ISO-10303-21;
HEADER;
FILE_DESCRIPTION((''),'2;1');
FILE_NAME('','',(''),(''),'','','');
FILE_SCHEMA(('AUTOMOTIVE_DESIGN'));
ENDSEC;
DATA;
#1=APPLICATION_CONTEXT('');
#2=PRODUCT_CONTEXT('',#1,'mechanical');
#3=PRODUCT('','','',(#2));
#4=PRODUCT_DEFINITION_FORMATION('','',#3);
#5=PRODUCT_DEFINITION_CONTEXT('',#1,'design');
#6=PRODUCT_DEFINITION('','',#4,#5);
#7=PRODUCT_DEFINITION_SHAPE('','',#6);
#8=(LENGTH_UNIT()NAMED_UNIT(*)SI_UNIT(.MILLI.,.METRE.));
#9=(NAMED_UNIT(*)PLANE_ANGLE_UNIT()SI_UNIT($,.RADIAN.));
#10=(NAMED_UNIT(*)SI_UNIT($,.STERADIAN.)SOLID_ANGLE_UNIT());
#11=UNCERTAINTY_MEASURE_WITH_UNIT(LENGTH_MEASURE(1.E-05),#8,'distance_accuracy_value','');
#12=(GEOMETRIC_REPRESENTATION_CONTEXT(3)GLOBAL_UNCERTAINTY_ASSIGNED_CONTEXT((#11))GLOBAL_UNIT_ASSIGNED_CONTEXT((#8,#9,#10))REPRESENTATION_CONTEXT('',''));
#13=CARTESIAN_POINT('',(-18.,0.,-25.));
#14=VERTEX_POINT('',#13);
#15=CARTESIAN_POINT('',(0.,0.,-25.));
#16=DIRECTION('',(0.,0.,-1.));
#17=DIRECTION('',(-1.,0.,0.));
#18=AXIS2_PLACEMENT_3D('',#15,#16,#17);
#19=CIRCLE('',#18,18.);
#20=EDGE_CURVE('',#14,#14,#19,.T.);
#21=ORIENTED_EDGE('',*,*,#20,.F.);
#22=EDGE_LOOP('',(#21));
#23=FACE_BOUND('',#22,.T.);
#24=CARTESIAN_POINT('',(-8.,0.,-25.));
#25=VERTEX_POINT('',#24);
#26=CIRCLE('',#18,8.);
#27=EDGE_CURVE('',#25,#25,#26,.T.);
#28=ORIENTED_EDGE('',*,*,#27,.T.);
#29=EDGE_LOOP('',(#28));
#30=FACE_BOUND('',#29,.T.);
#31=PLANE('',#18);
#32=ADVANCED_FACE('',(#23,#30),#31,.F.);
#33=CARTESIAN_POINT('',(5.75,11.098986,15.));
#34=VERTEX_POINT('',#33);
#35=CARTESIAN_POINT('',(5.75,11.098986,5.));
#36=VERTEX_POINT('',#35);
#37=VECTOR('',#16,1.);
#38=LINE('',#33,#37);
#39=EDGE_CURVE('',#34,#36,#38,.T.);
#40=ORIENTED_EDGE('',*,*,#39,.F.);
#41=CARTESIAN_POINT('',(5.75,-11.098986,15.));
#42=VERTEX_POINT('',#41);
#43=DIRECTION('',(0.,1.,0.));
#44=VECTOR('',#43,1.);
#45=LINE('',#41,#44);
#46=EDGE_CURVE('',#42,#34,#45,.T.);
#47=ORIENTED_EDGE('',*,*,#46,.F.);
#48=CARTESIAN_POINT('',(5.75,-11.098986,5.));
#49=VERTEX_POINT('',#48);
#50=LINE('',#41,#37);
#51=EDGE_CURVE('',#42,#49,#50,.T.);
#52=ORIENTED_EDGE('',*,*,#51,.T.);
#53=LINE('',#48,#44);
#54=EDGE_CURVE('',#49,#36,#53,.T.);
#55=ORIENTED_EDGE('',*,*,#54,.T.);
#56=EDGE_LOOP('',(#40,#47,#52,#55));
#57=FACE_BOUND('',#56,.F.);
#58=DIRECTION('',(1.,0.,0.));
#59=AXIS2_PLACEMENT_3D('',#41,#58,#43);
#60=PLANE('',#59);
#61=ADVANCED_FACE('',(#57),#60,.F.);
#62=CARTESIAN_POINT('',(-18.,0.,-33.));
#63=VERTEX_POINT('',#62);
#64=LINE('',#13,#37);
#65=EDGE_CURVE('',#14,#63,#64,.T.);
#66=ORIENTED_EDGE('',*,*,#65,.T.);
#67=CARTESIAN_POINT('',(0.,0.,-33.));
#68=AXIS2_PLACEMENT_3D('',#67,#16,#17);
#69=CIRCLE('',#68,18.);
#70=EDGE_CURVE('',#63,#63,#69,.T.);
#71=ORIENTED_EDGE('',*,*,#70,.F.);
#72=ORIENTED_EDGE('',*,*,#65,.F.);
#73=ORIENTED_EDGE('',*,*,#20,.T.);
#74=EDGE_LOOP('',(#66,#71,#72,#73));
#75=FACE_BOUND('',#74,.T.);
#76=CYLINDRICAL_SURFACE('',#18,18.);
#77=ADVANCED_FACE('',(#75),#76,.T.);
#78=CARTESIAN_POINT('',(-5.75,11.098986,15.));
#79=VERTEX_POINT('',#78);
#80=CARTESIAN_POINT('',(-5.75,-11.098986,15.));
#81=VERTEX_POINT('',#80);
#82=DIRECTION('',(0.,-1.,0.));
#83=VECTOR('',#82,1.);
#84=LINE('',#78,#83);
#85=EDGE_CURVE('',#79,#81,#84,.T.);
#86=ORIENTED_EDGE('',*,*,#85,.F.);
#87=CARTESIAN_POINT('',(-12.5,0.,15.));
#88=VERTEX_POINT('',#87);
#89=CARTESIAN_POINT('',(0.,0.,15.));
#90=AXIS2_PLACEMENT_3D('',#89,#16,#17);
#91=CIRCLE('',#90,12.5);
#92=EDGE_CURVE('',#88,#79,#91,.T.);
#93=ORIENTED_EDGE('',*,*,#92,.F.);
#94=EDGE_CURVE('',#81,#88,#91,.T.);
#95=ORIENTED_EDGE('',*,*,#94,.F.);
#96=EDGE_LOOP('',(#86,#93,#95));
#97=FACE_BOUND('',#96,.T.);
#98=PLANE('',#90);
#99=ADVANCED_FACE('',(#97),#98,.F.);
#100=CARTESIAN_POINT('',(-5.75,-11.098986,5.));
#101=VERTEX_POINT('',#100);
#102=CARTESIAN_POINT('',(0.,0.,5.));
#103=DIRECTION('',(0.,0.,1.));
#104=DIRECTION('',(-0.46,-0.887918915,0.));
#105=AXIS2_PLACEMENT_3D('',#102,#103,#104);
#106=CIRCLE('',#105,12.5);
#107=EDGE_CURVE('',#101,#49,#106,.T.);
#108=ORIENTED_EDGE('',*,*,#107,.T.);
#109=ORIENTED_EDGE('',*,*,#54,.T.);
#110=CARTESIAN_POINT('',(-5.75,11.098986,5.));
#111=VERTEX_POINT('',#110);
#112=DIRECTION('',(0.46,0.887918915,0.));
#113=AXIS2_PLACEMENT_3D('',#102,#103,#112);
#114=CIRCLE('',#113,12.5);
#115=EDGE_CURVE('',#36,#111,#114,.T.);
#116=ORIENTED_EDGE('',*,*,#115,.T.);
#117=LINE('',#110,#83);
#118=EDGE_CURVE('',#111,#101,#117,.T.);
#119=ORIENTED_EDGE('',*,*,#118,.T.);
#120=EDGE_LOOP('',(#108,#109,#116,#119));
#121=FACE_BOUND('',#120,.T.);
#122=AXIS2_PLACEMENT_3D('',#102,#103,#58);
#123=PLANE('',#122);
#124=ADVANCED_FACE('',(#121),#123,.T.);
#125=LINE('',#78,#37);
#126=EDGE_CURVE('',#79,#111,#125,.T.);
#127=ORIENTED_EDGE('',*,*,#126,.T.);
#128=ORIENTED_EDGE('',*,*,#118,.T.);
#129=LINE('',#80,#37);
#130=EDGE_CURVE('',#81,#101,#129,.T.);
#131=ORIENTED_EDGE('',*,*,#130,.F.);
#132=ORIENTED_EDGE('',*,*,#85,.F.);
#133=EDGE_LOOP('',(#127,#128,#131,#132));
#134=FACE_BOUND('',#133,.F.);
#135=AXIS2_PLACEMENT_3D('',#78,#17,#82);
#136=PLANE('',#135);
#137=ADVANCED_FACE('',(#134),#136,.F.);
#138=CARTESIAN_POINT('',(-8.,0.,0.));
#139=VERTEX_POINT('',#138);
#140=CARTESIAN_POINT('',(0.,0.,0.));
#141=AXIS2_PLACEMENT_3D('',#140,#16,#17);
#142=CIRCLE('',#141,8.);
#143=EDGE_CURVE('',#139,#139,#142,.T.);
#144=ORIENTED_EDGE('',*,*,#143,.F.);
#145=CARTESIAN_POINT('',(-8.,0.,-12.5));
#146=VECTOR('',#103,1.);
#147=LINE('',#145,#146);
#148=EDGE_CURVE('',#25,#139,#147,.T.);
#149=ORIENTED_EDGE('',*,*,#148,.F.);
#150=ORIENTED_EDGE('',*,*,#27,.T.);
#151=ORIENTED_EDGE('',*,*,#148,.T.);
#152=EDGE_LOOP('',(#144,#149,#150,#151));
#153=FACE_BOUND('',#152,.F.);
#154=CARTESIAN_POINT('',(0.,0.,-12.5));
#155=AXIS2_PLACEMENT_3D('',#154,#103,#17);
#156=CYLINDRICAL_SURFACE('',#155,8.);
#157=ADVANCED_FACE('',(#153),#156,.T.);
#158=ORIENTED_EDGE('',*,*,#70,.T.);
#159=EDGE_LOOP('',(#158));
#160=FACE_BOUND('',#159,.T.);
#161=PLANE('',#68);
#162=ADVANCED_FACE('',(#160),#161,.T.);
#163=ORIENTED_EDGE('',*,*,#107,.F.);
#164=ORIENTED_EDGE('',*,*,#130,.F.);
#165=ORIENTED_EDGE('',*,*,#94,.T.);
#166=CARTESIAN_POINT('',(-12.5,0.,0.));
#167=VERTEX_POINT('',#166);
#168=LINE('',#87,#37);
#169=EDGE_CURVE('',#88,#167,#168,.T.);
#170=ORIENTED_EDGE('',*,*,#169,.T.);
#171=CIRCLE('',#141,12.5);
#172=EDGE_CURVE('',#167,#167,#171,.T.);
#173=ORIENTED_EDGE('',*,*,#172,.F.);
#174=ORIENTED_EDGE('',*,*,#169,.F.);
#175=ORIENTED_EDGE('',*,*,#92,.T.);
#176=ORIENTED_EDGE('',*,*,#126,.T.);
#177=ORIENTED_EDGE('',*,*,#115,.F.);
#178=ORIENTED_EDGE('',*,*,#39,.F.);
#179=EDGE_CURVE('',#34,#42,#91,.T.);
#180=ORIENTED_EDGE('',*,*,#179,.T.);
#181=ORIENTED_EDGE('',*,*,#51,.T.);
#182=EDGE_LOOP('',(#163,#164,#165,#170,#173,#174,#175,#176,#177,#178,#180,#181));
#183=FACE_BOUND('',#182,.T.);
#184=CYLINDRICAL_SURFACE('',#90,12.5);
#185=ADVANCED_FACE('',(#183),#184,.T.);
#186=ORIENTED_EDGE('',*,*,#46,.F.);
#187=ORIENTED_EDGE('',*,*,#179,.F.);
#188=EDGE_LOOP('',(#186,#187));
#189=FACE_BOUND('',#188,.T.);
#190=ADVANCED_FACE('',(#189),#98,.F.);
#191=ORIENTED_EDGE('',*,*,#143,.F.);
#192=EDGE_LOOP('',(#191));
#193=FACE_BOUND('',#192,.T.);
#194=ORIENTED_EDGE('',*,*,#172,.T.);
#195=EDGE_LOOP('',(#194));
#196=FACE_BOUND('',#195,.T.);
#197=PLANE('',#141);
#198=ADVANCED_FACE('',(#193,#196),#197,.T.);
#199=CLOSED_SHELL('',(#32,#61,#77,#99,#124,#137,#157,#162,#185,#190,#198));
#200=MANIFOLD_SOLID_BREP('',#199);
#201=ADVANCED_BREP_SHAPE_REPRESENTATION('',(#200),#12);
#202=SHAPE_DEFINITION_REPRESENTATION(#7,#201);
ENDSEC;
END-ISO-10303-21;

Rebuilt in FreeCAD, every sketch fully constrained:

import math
import FreeCAD as App
import Part
import Sketcher
Q = App.Units.Quantity


def add_polygon(sketch, points):
    """Adds a closed chain of lines whose ends are joined by coincident constraints."""
    first, n = sketch.GeometryCount, len(points)
    for a, b in zip(points, points[1:] + points[:1]):
        sketch.addGeometry(Part.LineSegment(App.Vector(*a, 0), App.Vector(*b, 0)), False)
    for i in range(n):
        sketch.addConstraint(Sketcher.Constraint("Coincident", first + i, 2, first + (i + 1) % n, 1))

doc = App.newDocument("Part")
body = doc.addObject("PartDesign::Body", "Body")

# Sketch on XZ plane
sketch1 = body.newObject("Sketcher::SketchObject", "Sketch")
sketch1.AttachmentSupport = (doc.getObject("XZ_Plane"), [""])
sketch1.MapMode = "FlatFace"
add_polygon(sketch1, [(-12.5, 0), (-8, 0), (-8, -25), (-18, -25), (-18, -33), (0, -33), (0, 15), (-12.5, 15)])  # lines 0-7
sketch1.addConstraint([
    Sketcher.Constraint("Horizontal", 0),
    Sketcher.Constraint("Vertical", 1),
    Sketcher.Constraint("Horizontal", 2),
    Sketcher.Constraint("Vertical", 3),
    Sketcher.Constraint("Horizontal", 4),
    Sketcher.Constraint("Vertical", 5),
    Sketcher.Constraint("Horizontal", 6),
    Sketcher.Constraint("Vertical", 7),
    Sketcher.Constraint("PointOnObject", 0, 2, -1),
    Sketcher.Constraint("PointOnObject", 4, 2, -2),
    Sketcher.Constraint("DistanceX", 2, 2, 2, 1, Q("10 mm")),
    Sketcher.Constraint("DistanceX", 4, 1, 4, 2, Q("18 mm")),
    Sketcher.Constraint("DistanceY", 1, 2, 1, 1, Q("25 mm")),
    Sketcher.Constraint("DistanceY", 3, 2, 3, 1, Q("8 mm")),
    Sketcher.Constraint("DistanceY", 5, 1, 5, 2, Q("48 mm")),
    Sketcher.Constraint("DistanceX", 0, 1, 0, 2, Q("4.5 mm")),
])
revolution = body.newObject("PartDesign::Revolution", "Revolution")
revolution.Profile = sketch1
revolution.ReferenceAxis = (sketch1, ["V_Axis"])
revolution.Angle = 360

# Sketch on XY plane
sketch2 = body.newObject("Sketcher::SketchObject", "Sketch001")
sketch2.AttachmentSupport = (doc.getObject("XY_Plane"), [""])
sketch2.MapMode = "FlatFace"
sketch2.AttachmentOffset = App.Placement(App.Vector(0, 0, 15), App.Rotation())
sketch2.addGeometry([
    Part.ArcOfCircle(Part.Circle(App.Vector(0, 0, 0), App.Vector(0, 0, 1), 12.5), math.radians(62.612892), math.radians(117.387108)),
    Part.LineSegment(App.Vector(-5.75, 11.098986, 0), App.Vector(-5.75, -11.098986, 0)),
    Part.ArcOfCircle(Part.Circle(App.Vector(0, 0, 0), App.Vector(0, 0, 1), 12.5), math.radians(-117.387108), math.radians(-62.612892)),
    Part.LineSegment(App.Vector(5.75, -11.098986, 0), App.Vector(5.75, 11.098986, 0)),
], False)
sketch2.addConstraint([
    Sketcher.Constraint("Coincident", 0, 2, 1, 1),
    Sketcher.Constraint("Coincident", 1, 2, 2, 1),
    Sketcher.Constraint("Coincident", 2, 2, 3, 1),
    Sketcher.Constraint("Coincident", 3, 2, 0, 1),
    Sketcher.Constraint("Vertical", 1),
    Sketcher.Constraint("Vertical", 3),
    Sketcher.Constraint("Coincident", 0, 3, -1, 1),
    Sketcher.Constraint("Coincident", 2, 3, -1, 1),
    Sketcher.Constraint("Equal", 0, 2),
    Sketcher.Constraint("Horizontal", 1, 2, 2, 2),
    Sketcher.Constraint("Radius", 0, Q("12.5 mm")),
    Sketcher.Constraint("DistanceX", 1, 2, 2, 2, Q("11.5 mm")),
])
pocket1 = body.newObject("PartDesign::Pocket", "Pocket")
pocket1.Profile = sketch2
pocket1.Length = 10

doc.recompute()
